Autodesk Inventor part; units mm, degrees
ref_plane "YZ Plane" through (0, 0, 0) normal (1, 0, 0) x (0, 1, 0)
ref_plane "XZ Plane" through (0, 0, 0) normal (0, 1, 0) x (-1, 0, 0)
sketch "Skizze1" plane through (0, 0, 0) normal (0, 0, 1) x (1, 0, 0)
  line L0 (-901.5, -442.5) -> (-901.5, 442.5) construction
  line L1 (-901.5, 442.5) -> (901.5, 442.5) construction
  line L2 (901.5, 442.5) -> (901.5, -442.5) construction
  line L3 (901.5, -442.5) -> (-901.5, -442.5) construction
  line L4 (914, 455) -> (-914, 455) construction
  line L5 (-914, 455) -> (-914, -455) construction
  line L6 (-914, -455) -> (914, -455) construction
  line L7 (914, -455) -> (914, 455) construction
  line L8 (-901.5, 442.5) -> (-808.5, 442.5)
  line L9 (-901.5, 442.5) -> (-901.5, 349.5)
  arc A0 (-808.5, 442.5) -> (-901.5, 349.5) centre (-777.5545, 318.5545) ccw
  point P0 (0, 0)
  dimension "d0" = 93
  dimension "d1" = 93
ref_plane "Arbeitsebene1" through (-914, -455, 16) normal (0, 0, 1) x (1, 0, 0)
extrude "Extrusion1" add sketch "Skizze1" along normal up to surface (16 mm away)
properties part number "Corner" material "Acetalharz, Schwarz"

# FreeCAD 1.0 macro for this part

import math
import FreeCAD as App
import Part
import Sketcher

V = App.Vector

doc = App.newDocument("Part")
body = doc.addObject("PartDesign::Body", "Body")

# Sketch on XY plane
sketch1 = body.newObject("Sketcher::SketchObject", "Sketch")
sketch1.AttachmentSupport = (doc.getObject("XY_Plane"), [""])
sketch1.MapMode = "FlatFace"
sketch1.addGeometry(Part.LineSegment(V(-808, 442, 0), V(-902, 442, 0)), False)
sketch1.addGeometry(Part.LineSegment(V(-902, 442, 0), V(-902, 350, 0)), False)
sketch1.addGeometry(Part.ArcOfCircle(Part.Circle(V(-778, 319, 0), V(0, 0, 1), 128), math.radians(104), math.radians(166)), False)
sketch1.addConstraint(Sketcher.Constraint("Coincident", 0, 2, 1, 1))
sketch1.addConstraint(Sketcher.Constraint("Coincident", 1, 2, 2, 2))
sketch1.addConstraint(Sketcher.Constraint("Coincident", 2, 1, 0, 1))
sketch1.addConstraint(Sketcher.Constraint("Horizontal", 0))
sketch1.addConstraint(Sketcher.Constraint("Vertical", 1))
sketch1.addConstraint(Sketcher.Constraint("Equal", 0, 1))
sketch1.addConstraint(Sketcher.Constraint("DistanceX", 0, 2, 0, 1, 93.0))
sketch1.addConstraint(Sketcher.Constraint("DistanceX", 0, 2, -1, 1, 901.5))
sketch1.addConstraint(Sketcher.Constraint("DistanceY", -1, 1, 0, 2, 442.5))
sketch1.addConstraint(Sketcher.Constraint("Radius", 2, 127.7502))
pad1 = body.newObject("PartDesign::Pad", "Pad")
pad1.Profile = sketch1
pad1.Length = 16

doc.recompute()
